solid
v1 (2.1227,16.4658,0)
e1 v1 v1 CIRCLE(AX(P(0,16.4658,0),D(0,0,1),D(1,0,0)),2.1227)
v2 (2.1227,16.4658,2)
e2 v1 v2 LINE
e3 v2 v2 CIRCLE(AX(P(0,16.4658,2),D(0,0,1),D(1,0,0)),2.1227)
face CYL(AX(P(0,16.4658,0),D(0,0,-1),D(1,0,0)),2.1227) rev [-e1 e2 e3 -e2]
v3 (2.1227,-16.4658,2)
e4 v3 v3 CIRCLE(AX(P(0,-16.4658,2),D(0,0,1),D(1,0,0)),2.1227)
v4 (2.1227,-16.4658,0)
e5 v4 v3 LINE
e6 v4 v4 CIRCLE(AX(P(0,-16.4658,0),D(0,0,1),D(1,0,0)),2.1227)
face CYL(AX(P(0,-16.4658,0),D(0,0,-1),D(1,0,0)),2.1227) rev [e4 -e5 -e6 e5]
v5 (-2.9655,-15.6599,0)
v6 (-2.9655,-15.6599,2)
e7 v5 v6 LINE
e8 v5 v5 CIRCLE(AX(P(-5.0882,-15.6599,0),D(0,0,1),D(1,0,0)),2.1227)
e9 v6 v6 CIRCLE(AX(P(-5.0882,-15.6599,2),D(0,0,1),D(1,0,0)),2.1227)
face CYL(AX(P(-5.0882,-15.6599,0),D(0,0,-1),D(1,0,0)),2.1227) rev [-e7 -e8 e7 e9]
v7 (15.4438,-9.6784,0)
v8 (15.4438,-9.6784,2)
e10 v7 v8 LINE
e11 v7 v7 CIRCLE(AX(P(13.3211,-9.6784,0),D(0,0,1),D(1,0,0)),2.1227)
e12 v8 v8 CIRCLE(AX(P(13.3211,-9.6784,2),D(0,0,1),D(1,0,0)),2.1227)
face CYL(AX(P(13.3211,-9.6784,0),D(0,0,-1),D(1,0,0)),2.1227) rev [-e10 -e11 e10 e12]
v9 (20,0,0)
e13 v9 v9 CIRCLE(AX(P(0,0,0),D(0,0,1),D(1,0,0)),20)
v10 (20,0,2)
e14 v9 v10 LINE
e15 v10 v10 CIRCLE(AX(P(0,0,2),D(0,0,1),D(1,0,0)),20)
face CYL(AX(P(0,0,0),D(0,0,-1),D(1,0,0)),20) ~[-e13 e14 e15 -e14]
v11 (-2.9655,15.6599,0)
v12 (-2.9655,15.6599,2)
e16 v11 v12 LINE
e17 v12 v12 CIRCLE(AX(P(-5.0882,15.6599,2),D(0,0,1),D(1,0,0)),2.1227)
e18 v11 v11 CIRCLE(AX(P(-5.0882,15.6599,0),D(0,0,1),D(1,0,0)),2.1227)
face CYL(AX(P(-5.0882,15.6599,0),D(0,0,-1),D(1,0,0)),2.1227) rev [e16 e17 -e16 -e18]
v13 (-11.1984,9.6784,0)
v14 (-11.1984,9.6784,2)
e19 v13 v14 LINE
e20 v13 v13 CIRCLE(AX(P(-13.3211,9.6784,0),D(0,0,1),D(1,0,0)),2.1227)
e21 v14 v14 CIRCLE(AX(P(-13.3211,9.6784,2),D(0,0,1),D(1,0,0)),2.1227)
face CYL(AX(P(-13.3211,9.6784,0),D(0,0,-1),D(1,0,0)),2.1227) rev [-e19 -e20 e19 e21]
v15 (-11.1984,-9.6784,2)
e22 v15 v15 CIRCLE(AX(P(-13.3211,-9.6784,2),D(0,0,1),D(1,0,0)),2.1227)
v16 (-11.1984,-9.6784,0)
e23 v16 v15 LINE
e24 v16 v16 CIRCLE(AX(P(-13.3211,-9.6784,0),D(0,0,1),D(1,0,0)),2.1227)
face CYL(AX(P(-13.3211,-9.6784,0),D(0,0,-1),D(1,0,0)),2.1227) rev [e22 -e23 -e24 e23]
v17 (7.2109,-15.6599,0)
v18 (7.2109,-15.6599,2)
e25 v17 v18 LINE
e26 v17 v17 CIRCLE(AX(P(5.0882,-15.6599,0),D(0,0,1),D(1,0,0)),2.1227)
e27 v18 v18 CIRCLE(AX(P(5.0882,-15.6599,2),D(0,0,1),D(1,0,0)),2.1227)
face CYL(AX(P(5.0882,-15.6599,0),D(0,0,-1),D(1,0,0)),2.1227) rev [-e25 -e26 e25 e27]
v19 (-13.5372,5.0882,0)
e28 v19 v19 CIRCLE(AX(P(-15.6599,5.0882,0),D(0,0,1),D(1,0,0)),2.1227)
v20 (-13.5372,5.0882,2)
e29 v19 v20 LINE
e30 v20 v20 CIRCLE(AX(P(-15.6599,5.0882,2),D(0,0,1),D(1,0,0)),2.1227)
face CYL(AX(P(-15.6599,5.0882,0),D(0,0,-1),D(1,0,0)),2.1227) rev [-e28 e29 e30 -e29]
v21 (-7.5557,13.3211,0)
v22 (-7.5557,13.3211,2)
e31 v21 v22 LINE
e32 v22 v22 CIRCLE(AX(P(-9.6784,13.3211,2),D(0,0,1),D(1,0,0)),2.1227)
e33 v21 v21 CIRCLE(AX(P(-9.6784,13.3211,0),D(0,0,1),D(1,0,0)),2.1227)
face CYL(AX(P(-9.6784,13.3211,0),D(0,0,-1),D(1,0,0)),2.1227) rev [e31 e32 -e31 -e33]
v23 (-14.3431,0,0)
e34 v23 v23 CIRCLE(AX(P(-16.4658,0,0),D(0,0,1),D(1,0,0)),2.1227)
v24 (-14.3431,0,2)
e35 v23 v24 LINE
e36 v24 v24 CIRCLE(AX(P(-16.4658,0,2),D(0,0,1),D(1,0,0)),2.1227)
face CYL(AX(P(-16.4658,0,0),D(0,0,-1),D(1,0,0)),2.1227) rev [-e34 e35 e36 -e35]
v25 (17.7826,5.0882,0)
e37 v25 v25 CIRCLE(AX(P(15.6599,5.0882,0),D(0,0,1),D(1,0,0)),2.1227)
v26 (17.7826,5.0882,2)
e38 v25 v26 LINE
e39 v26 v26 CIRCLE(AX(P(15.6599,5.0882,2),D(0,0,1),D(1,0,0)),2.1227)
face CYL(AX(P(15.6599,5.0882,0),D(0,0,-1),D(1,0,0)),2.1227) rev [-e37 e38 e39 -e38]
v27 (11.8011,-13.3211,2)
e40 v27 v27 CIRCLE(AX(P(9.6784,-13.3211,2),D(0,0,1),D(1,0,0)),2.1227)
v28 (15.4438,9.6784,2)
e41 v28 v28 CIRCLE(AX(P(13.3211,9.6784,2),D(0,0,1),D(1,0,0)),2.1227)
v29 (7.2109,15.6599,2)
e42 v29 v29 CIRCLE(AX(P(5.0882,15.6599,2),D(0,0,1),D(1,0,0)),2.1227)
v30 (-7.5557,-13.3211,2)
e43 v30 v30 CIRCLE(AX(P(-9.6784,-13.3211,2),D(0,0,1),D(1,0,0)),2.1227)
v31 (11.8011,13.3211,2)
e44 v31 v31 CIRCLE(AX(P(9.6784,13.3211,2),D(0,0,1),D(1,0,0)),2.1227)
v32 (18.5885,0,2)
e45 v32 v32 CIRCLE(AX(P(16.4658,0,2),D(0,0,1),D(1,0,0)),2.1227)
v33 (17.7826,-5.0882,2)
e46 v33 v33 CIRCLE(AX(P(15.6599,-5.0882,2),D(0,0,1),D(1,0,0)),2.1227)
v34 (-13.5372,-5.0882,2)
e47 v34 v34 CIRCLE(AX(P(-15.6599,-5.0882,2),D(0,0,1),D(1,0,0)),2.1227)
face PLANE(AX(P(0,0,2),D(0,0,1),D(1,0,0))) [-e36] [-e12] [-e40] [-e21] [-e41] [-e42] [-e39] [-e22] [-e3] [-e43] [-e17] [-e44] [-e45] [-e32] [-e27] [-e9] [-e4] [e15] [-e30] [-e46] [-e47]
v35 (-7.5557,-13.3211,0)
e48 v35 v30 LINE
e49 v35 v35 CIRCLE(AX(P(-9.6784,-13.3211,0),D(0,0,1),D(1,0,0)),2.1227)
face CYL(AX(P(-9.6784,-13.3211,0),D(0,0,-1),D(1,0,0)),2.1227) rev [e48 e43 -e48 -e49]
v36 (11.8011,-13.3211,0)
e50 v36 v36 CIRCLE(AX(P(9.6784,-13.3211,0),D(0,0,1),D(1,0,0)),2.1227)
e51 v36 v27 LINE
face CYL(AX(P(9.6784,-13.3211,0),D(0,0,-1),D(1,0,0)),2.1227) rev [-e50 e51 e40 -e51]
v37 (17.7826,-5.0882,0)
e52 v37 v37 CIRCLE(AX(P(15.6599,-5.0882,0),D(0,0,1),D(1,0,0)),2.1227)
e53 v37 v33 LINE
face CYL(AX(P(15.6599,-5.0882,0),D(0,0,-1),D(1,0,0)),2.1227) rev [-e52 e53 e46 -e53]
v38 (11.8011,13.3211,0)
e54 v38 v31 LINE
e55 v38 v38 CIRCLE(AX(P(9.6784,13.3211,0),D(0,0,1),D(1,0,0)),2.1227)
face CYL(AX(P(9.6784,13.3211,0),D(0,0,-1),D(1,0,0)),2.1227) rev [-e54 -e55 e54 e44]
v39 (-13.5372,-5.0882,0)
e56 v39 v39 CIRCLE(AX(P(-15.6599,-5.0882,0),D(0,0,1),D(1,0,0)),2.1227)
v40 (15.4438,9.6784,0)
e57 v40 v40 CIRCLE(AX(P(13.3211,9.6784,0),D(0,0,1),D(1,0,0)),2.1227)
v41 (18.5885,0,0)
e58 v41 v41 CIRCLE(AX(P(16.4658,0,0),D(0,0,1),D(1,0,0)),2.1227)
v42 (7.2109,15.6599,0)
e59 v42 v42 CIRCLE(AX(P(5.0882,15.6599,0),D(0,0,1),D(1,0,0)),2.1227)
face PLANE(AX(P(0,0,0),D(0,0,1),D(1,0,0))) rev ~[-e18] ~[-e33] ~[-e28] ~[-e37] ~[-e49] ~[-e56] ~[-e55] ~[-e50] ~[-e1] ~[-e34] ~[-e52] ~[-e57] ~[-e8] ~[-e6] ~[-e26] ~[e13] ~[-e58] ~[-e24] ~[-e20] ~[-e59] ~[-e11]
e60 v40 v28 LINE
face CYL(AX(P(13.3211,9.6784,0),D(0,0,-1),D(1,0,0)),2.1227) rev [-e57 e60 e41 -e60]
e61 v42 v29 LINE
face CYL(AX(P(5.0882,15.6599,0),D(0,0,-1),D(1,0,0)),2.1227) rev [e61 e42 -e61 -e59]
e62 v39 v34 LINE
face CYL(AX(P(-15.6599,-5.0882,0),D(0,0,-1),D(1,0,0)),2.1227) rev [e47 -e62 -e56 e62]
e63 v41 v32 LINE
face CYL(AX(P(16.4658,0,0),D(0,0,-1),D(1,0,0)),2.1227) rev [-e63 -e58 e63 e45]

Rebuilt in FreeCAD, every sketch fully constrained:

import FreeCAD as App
import Part
import Sketcher
Q = App.Units.Quantity

doc = App.newDocument("Part")
params = doc.addObject("Spreadsheet::Sheet", "Params")
for row, (alias, value) in enumerate([
    ("sketch1_diameter", "40 mm"),
    ("pad1_length", "2 mm"),
], start=1):
    params.set(f"A{row}", alias)
    params.set(f"B{row}", "=" + value)
    params.setAlias(f"B{row}", alias)

body = doc.addObject("PartDesign::Body", "Body")

# Sketch on XY plane
sketch1 = body.newObject("Sketcher::SketchObject", "Sketch")
sketch1.AttachmentSupport = (doc.getObject("XY_Plane"), [""])
sketch1.MapMode = "FlatFace"
sketch1.addGeometry([
    Part.Circle(App.Vector(0, 0, 0), App.Vector(0, 0, 1), 20),  # 0
    Part.Circle(App.Vector(-5.1, -15.7, 0), App.Vector(0, 0, 1), 2.1),  # 1
    Part.Circle(App.Vector(-9.7, -13.3, 0), App.Vector(0, 0, 1), 2.1),  # 2
    Part.Circle(App.Vector(-15.7, -5.1, 0), App.Vector(0, 0, 1), 2.1),  # 3
    Part.Circle(App.Vector(-13.3, -9.7, 0), App.Vector(0, 0, 1), 2.1),  # 4
    Part.Circle(App.Vector(0, -16.5, 0), App.Vector(0, 0, 1), 2.1),  # 5
    Part.Circle(App.Vector(5.1, -15.7, 0), App.Vector(0, 0, 1), 2.1),  # 6
    Part.Circle(App.Vector(9.7, -13.3, 0), App.Vector(0, 0, 1), 2.1),  # 7
    Part.Circle(App.Vector(13.3, -9.7, 0), App.Vector(0, 0, 1), 2.1),  # 8
    Part.Circle(App.Vector(15.7, -5.1, 0), App.Vector(0, 0, 1), 2.1),  # 9
    Part.Circle(App.Vector(-16.5, 0, 0), App.Vector(0, 0, 1), 2.1),  # 10
    Part.Circle(App.Vector(-15.7, 5.1, 0), App.Vector(0, 0, 1), 2.1),  # 11
    Part.Circle(App.Vector(-13.3, 9.7, 0), App.Vector(0, 0, 1), 2.1),  # 12
    Part.Circle(App.Vector(-9.7, 13.3, 0), App.Vector(0, 0, 1), 2.1),  # 13
    Part.Circle(App.Vector(-5.1, 15.7, 0), App.Vector(0, 0, 1), 2.1),  # 14
    Part.Circle(App.Vector(16.5, 0, 0), App.Vector(0, 0, 1), 2.1),  # 15
    Part.Circle(App.Vector(13.3, 9.7, 0), App.Vector(0, 0, 1), 2.1),  # 16
    Part.Circle(App.Vector(15.7, 5.1, 0), App.Vector(0, 0, 1), 2.1),  # 17
    Part.Circle(App.Vector(9.7, 13.3, 0), App.Vector(0, 0, 1), 2.1),  # 18
    Part.Circle(App.Vector(0, 16.5, 0), App.Vector(0, 0, 1), 2.1),  # 19
    Part.Circle(App.Vector(5.1, 15.7, 0), App.Vector(0, 0, 1), 2.1),  # 20
], False)
sketch1.addConstraint([
    Sketcher.Constraint("Coincident", 0, 3, -1, 1),
    Sketcher.Constraint("Equal", 1, 2),
    Sketcher.Constraint("Equal", 2, 3),
    Sketcher.Constraint("Equal", 3, 4),
    Sketcher.Constraint("Equal", 4, 5),
    Sketcher.Constraint("Equal", 5, 6),
    Sketcher.Constraint("Equal", 6, 7),
    Sketcher.Constraint("Equal", 7, 8),
    Sketcher.Constraint("Equal", 8, 9),
    Sketcher.Constraint("Equal", 9, 10),
    Sketcher.Constraint("Equal", 10, 11),
    Sketcher.Constraint("Equal", 11, 12),
    Sketcher.Constraint("Equal", 12, 13),
    Sketcher.Constraint("Equal", 13, 14),
    Sketcher.Constraint("Equal", 14, 15),
    Sketcher.Constraint("Equal", 15, 16),
    Sketcher.Constraint("Equal", 16, 17),
    Sketcher.Constraint("Equal", 17, 18),
    Sketcher.Constraint("Equal", 18, 19),
    Sketcher.Constraint("Equal", 19, 20),
    Sketcher.Constraint("Symmetric", 9, 3, 11, 3, -1, 1),
    Sketcher.Constraint("Symmetric", 8, 3, 12, 3, -1, 1),
    Sketcher.Constraint("Symmetric", 7, 3, 13, 3, -1, 1),
    Sketcher.Constraint("Symmetric", 6, 3, 14, 3, -1, 1),
    Sketcher.Constraint("Symmetric", 10, 3, 15, 3, -1, 1),
    Sketcher.Constraint("Symmetric", 4, 3, 16, 3, -1, 1),
    Sketcher.Constraint("Symmetric", 3, 3, 17, 3, -1, 1),
    Sketcher.Constraint("Symmetric", 2, 3, 18, 3, -1, 1),
    Sketcher.Constraint("Symmetric", 5, 3, 19, 3, -1, 1),
    Sketcher.Constraint("Symmetric", 1, 3, 20, 3, -1, 1),
    Sketcher.Constraint("Symmetric", 1, 3, 6, 3, -2),
    Sketcher.Constraint("Symmetric", 2, 3, 7, 3, -2),
    Sketcher.Constraint("Symmetric", 4, 3, 8, 3, -2),
    Sketcher.Constraint("Symmetric", 3, 3, 9, 3, -2),
    Sketcher.Constraint("PointOnObject", 5, 3, -2),
    Sketcher.Constraint("PointOnObject", 10, 3, -1),
    Sketcher.Constraint("Diameter", 0, Q("40 mm")),
    Sketcher.Constraint("Diameter", 1, Q("4.2454 mm")),
    Sketcher.Constraint("DistanceY", 1, 3, -1, 1, Q("15.66 mm")),
    Sketcher.Constraint("DistanceX", 3, 3, -1, 1, Q("15.66 mm")),
    Sketcher.Constraint("DistanceY", 2, 3, -1, 1, Q("13.321 mm")),
    Sketcher.Constraint("DistanceX", 4, 3, -1, 1, Q("13.321 mm")),
    Sketcher.Constraint("DistanceY", 2, 3, 3, 3, Q("8.233 mm")),
    Sketcher.Constraint("DistanceX", 4, 3, 1, 3, Q("8.233 mm")),
    Sketcher.Constraint("DistanceY", 5, 3, 1, 3, Q("0.806 mm")),
    Sketcher.Constraint("DistanceX", 10, 3, 3, 3, Q("0.806 mm")),
    Sketcher.Constraint("DistanceX", 2, 3, -1, 1, Q("9.6784 mm")),
    Sketcher.Constraint("DistanceY", 4, 3, -1, 1, Q("9.6784 mm")),
])
sketch1.setExpression("Constraints[36]", "Params.sketch1_diameter")
pad1 = body.newObject("PartDesign::Pad", "Pad")
pad1.Profile = sketch1
pad1.setExpression("Length", "Params.pad1_length")

doc.recompute()
